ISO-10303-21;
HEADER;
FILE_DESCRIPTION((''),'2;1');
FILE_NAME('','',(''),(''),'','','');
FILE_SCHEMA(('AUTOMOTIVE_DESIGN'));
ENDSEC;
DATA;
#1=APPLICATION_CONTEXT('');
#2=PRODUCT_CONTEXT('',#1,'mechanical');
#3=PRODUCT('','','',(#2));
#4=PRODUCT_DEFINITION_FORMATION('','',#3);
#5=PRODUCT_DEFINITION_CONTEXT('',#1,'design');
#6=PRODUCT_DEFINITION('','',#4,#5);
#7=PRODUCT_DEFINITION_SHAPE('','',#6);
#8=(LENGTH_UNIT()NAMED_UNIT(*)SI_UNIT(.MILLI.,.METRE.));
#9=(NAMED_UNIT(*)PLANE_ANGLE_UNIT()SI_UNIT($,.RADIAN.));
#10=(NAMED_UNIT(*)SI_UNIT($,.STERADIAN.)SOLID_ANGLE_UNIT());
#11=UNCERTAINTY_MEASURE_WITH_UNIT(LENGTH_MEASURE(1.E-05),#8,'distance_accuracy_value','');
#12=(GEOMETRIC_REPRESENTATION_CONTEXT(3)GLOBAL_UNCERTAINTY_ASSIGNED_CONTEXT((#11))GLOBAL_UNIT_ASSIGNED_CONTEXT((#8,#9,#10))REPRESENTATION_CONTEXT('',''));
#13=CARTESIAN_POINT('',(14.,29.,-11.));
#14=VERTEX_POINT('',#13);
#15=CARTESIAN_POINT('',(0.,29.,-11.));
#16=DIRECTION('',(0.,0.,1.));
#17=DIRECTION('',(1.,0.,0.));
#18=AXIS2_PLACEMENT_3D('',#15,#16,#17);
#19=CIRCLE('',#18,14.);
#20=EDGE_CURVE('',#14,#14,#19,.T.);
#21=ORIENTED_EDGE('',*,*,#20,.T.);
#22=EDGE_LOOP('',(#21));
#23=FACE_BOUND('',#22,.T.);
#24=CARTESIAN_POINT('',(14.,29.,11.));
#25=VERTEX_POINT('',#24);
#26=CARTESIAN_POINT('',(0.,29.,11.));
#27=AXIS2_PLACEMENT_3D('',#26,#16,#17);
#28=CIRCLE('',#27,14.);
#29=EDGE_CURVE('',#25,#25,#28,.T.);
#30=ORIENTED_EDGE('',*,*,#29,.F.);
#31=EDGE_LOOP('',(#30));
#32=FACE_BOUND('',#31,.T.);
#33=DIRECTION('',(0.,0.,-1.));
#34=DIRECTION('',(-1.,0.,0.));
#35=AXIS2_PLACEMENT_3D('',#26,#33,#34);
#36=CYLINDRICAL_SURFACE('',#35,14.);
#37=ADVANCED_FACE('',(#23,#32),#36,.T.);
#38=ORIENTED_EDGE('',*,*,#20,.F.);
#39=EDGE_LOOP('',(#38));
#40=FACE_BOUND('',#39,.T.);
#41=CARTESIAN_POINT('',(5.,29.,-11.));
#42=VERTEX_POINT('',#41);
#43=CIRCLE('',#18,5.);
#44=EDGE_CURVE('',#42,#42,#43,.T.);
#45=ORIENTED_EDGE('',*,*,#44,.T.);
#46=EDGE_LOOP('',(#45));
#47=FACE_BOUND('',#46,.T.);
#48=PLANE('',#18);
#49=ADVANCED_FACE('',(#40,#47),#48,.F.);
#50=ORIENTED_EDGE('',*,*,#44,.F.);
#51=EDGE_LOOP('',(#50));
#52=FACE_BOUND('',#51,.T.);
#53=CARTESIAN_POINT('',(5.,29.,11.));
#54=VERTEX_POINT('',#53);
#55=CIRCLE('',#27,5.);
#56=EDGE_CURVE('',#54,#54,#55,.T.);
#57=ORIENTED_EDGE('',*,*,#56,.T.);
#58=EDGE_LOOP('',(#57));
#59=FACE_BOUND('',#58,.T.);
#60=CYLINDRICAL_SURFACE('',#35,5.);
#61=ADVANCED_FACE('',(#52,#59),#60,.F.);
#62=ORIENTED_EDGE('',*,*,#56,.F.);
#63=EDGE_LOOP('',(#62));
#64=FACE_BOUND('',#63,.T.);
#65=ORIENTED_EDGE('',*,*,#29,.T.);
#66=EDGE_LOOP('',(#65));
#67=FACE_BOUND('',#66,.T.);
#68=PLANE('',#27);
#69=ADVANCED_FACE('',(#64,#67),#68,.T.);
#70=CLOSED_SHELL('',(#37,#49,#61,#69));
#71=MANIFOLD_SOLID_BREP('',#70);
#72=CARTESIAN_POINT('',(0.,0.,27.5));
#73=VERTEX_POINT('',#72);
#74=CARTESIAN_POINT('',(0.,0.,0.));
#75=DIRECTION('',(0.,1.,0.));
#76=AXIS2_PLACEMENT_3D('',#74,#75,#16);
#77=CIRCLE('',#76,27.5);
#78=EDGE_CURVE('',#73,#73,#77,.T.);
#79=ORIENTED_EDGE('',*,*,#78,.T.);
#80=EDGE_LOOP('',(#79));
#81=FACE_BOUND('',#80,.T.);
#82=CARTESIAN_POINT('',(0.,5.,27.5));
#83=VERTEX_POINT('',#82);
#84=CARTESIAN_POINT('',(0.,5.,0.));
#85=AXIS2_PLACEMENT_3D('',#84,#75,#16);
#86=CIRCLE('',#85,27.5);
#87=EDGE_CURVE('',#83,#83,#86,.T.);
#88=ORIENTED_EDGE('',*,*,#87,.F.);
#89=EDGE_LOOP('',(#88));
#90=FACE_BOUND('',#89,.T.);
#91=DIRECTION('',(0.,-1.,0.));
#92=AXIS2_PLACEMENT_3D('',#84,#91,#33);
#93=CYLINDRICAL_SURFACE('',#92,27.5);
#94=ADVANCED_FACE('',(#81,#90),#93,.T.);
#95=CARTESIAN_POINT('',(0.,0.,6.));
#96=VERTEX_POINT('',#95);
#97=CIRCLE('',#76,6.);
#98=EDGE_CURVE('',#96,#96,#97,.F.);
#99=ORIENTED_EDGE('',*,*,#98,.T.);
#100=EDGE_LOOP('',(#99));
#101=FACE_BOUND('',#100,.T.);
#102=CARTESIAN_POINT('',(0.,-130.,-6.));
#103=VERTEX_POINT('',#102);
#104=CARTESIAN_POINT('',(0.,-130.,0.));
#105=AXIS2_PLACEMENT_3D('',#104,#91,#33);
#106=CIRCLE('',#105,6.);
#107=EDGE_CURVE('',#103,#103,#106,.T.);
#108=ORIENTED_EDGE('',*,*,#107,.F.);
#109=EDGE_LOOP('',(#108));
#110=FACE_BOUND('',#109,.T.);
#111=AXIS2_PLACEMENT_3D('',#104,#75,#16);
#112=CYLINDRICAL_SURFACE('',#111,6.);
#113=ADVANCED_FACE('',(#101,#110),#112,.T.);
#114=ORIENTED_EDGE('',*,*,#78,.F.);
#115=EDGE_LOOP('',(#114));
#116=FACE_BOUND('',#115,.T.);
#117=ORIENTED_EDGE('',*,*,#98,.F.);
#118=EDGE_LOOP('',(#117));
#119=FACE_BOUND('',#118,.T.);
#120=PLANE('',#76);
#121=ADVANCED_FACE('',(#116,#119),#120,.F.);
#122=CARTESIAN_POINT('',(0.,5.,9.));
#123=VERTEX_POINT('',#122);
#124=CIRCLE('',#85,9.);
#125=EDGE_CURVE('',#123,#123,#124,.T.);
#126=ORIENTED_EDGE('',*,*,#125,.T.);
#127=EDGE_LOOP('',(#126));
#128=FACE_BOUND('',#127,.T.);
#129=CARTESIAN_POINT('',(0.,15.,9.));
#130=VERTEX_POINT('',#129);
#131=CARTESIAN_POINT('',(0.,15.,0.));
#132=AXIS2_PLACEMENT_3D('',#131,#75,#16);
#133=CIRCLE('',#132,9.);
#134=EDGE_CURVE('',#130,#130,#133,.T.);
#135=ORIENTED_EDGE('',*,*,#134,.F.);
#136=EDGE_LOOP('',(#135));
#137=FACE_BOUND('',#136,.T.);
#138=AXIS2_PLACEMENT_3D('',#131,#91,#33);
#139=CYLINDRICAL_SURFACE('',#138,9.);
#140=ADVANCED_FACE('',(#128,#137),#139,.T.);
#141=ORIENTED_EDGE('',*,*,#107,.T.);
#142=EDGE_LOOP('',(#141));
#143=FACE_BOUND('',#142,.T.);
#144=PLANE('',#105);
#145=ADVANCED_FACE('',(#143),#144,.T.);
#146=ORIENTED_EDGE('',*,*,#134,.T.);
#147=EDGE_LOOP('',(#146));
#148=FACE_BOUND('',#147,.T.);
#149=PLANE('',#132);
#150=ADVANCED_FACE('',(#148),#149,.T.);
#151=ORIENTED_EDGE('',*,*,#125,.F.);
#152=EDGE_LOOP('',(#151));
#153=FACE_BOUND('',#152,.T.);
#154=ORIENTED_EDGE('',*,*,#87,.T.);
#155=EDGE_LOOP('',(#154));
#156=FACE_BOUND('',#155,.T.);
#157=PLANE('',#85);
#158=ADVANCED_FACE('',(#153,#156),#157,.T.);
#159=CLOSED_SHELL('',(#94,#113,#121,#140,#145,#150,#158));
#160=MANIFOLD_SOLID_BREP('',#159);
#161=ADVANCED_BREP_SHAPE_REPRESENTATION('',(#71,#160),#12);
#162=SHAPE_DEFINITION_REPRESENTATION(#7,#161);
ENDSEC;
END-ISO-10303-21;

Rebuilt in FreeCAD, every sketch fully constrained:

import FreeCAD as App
import Part
import Sketcher
from FreeCAD import Vector
Q = App.Units.Quantity

doc = App.newDocument("Part")
body = doc.addObject("PartDesign::Body", "Body")

# Sketch on XZ plane
sketch1 = body.newObject("Sketcher::SketchObject", "Sketch")
sketch1.AttachmentSupport = (doc.getObject("XZ_Plane"), [""])
sketch1.MapMode = "FlatFace"
sketch1.addGeometry(Part.Circle(Vector(0, 0, 0), Vector(0, 0, 1), 28), False)
sketch1.addConstraint([
    Sketcher.Constraint("Coincident", 0, 3, -1, 1),
    Sketcher.Constraint("Diameter", 0, Q("55 mm")),
])
pad1 = body.newObject("PartDesign::Pad", "Pad")
pad1.Profile = sketch1
pad1.Length = 5
pad1.Reversed = True

# Sketch on XZ plane
sketch2 = body.newObject("Sketcher::SketchObject", "Sketch001")
sketch2.AttachmentSupport = (doc.getObject("XZ_Plane"), [""])
sketch2.MapMode = "FlatFace"
sketch2.AttachmentOffset = App.Placement(Vector(0, 0, -5), App.Rotation())
sketch2.addGeometry(Part.Circle(Vector(0, 0, 0), Vector(0, 0, 1), 9), False)
sketch2.addConstraint([
    Sketcher.Constraint("Coincident", 0, 3, -1, 1),
    Sketcher.Constraint("Diameter", 0, Q("18 mm")),
])
pad2 = body.newObject("PartDesign::Pad", "Pad001")
pad2.Profile = sketch2
pad2.Length = 10
pad2.Reversed = True

# Sketch on XZ plane
sketch3 = body.newObject("Sketcher::SketchObject", "Sketch002")
sketch3.AttachmentSupport = (doc.getObject("XZ_Plane"), [""])
sketch3.MapMode = "FlatFace"
sketch3.addGeometry(Part.Circle(Vector(0, 0, 0), Vector(0, 0, 1), 6), False)
sketch3.addConstraint([
    Sketcher.Constraint("Coincident", 0, 3, -1, 1),
    Sketcher.Constraint("Diameter", 0, Q("12 mm")),
])
pad3 = body.newObject("PartDesign::Pad", "Pad002")
pad3.Profile = sketch3
pad3.Length = 130
body2 = doc.addObject("PartDesign::Body", "Body001")

# Sketch on XY plane
sketch4 = body2.newObject("Sketcher::SketchObject", "Sketch003")
sketch4.AttachmentSupport = (doc.getObject("XY_Plane001"), [""])
sketch4.MapMode = "FlatFace"
sketch4.addGeometry([
    Part.Circle(Vector(0, 29, 0), Vector(0, 0, 1), 14),
    Part.Circle(Vector(0, 29, 0), Vector(0, 0, 1), 5),
], False)
sketch4.addConstraint([
    Sketcher.Constraint("Coincident", 1, 3, 0, 3),
    Sketcher.Constraint("PointOnObject", 0, 3, -2),
    Sketcher.Constraint("Diameter", 0, Q("28 mm")),
    Sketcher.Constraint("Diameter", 1, Q("10 mm")),
    Sketcher.Constraint("DistanceY", -1, 1, 0, 3, Q("29 mm")),
])
pad4 = body2.newObject("PartDesign::Pad", "Pad003")
pad4.Profile = sketch4
pad4.Length = 22
pad4.Midplane = True

doc.recompute()
